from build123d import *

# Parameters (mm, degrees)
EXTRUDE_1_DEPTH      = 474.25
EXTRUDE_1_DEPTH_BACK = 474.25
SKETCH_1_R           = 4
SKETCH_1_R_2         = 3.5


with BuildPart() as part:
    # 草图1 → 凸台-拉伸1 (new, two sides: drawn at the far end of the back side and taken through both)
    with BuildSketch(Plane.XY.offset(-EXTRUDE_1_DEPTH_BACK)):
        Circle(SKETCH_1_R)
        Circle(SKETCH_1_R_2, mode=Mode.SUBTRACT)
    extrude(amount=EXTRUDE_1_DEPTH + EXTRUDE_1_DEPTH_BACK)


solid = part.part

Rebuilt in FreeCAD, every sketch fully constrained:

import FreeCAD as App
import Part
import Sketcher
from FreeCAD import Vector

doc = App.newDocument("Part")
body = doc.addObject("PartDesign::Body", "Body")

sketch1 = doc.addObject("Sketcher::SketchObject", "Sketch")
body.addObject(sketch1)
sketch1.AttachmentSupport = (doc.XY_Plane, [""])
sketch1.MapMode = "FlatFace"
sketch1.addGeometry([
    Part.Circle(Vector(0, 0, 0), Vector(0, 0, 1), 4),
    Part.Circle(Vector(0, 0, 0), Vector(0, 0, 1), 3.5),
], False)
sketch1.addConstraint([
    Sketcher.Constraint("Coincident", 0, 3, -1, 1),
    Sketcher.Constraint("Coincident", 1, 3, -1, 1),
    Sketcher.Constraint("Diameter", 0, 8.0),
    Sketcher.Constraint("Diameter", 1, 7.0),
])
pad1 = doc.addObject("PartDesign::Pad", "Pad")
body.addObject(pad1)
pad1.Profile = sketch1
pad1.Type = "TwoLengths"
pad1.Length = 474.25
pad1.Length2 = 474.25

doc.recompute()
